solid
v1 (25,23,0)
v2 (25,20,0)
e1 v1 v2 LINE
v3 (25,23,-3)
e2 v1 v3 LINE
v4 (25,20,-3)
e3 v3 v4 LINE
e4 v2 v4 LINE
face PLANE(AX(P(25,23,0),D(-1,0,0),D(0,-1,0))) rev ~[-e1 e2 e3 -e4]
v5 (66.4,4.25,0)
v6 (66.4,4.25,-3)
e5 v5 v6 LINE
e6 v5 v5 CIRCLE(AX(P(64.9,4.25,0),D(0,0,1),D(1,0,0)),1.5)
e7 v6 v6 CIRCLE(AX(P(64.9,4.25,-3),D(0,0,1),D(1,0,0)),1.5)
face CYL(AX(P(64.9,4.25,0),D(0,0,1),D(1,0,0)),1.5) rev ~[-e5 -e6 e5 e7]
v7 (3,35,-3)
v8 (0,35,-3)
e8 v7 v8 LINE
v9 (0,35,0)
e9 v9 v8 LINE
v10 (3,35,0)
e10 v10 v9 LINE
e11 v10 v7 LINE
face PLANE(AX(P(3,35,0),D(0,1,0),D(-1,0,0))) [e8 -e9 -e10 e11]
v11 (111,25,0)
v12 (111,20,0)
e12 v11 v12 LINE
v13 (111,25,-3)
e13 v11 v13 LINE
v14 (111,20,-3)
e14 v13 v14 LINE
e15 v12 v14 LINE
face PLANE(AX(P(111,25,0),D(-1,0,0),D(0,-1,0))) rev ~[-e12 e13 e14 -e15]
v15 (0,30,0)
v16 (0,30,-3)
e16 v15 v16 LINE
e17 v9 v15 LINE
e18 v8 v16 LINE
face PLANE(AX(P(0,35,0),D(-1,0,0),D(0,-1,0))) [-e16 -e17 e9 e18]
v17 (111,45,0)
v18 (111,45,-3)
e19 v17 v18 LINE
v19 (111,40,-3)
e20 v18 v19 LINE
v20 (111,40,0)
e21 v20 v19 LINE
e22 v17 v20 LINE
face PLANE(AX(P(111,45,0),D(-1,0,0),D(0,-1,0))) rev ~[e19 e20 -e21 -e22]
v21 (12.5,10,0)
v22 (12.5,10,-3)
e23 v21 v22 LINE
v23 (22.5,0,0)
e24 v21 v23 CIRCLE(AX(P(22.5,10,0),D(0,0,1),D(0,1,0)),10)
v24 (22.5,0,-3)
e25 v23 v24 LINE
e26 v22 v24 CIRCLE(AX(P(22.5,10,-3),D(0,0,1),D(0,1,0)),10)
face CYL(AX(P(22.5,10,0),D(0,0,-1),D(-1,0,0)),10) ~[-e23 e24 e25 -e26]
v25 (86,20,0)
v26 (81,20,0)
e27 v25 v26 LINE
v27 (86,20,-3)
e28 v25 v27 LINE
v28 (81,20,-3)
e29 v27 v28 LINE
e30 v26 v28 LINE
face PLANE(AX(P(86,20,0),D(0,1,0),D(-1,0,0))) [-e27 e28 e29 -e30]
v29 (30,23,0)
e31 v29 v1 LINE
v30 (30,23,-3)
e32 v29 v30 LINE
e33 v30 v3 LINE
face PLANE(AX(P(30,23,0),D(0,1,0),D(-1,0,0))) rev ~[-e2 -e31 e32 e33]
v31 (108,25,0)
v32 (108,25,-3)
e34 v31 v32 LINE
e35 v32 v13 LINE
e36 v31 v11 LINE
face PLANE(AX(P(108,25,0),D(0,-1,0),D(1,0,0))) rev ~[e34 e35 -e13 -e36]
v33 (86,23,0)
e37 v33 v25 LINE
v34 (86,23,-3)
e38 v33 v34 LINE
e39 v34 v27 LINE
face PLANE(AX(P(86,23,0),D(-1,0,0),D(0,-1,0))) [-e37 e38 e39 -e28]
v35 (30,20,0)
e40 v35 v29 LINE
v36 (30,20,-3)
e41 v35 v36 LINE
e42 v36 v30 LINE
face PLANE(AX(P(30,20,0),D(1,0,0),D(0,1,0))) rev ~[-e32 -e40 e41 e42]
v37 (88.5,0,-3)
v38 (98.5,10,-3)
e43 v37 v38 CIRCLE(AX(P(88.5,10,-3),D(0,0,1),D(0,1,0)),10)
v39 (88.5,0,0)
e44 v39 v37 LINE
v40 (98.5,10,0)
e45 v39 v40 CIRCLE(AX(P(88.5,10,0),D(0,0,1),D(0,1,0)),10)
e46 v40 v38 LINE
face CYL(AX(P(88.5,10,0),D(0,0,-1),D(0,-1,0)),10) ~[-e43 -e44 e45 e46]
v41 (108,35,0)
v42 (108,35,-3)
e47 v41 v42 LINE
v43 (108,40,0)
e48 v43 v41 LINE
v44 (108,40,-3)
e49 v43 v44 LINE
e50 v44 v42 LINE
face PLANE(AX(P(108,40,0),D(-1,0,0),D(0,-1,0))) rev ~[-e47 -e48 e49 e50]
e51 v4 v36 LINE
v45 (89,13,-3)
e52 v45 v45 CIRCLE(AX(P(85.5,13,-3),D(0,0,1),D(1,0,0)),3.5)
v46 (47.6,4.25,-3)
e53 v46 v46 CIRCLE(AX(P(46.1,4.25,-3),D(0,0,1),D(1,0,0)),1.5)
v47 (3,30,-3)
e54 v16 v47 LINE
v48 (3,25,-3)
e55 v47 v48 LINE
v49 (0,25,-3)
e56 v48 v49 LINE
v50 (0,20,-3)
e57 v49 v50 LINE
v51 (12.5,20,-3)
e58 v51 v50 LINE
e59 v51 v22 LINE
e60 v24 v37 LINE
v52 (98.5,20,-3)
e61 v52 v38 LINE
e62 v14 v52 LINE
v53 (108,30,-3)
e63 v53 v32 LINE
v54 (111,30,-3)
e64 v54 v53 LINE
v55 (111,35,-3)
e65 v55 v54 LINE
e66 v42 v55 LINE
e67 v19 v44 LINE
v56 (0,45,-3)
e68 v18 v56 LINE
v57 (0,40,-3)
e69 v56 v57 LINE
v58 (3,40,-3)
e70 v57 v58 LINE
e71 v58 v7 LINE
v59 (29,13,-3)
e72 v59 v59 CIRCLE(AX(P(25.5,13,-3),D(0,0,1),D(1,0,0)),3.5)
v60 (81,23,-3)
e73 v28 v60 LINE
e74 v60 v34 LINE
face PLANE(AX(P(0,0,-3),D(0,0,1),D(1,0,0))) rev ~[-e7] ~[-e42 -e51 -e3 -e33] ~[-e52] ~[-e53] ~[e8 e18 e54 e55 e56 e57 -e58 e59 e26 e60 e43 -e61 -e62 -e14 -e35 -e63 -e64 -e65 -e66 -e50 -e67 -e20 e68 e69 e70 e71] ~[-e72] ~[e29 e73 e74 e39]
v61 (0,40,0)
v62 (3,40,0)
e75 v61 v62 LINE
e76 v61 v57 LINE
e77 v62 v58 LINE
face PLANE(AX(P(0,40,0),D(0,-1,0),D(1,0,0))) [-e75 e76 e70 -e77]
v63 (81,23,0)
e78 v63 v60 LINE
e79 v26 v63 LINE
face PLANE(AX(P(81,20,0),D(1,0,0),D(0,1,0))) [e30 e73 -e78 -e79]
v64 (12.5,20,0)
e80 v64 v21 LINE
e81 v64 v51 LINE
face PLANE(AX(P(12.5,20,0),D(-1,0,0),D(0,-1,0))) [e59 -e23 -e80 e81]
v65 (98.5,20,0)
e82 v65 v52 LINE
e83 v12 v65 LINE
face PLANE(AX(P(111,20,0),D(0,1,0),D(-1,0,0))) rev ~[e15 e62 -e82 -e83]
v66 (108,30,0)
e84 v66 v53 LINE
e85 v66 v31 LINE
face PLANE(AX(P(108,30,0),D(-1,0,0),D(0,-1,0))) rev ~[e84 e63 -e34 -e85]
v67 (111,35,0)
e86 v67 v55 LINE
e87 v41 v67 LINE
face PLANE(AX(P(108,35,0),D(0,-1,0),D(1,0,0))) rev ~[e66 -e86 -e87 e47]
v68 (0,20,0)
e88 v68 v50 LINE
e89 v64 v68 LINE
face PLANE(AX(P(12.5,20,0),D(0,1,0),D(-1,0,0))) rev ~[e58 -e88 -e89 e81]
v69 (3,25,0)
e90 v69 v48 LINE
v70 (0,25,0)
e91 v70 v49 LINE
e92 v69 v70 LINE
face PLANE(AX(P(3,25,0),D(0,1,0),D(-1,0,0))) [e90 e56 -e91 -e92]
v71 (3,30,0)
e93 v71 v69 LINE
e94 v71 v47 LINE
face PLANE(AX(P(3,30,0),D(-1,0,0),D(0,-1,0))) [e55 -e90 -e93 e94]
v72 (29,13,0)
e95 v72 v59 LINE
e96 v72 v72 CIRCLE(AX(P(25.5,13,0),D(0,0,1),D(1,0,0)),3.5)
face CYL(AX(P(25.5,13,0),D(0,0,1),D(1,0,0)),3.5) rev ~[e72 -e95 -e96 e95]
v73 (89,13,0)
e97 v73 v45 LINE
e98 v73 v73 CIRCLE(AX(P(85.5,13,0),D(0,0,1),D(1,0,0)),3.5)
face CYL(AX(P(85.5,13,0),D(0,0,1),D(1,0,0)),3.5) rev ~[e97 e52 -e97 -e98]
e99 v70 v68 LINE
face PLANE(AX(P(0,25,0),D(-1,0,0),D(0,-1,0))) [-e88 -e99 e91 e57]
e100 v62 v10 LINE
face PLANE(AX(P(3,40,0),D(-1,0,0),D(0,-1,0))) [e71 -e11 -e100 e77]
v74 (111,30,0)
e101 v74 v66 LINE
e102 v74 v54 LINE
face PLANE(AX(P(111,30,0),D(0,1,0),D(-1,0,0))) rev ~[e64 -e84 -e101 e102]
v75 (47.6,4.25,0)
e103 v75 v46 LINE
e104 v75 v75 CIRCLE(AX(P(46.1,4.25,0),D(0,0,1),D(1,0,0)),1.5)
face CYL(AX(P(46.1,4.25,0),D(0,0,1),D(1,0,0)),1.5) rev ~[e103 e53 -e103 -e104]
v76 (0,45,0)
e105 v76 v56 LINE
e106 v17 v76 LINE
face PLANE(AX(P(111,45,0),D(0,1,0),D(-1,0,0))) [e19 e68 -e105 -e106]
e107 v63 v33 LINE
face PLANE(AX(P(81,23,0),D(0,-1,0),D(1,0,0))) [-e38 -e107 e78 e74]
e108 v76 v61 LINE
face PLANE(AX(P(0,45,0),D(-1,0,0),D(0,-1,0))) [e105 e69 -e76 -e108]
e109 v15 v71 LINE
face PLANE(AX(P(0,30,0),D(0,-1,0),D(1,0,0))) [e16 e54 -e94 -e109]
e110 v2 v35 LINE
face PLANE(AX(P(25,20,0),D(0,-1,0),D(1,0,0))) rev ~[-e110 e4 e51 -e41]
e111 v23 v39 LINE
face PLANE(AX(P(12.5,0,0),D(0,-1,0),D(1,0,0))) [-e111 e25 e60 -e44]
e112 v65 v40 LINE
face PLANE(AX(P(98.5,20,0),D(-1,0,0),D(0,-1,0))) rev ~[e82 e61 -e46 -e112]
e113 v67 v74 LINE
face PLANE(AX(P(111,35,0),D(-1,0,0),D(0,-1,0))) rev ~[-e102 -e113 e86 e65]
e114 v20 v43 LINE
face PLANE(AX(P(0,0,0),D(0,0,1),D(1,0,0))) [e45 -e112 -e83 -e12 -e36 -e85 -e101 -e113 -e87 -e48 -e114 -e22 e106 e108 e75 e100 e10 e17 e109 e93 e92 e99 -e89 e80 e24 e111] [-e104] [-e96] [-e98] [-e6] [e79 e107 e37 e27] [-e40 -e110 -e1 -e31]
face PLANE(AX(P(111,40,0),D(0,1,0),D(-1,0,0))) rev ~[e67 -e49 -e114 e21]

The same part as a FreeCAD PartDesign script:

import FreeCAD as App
import Part
import Sketcher

V = App.Vector
Q = App.Units.Quantity


def edges_at(feature, points):
    """Names of the edges that pass closest to the given points."""
    edges = feature.Shape.Edges
    near = lambda p: min(range(len(edges)), key=lambda i: edges[i].distToShape(Part.Vertex(*p))[0])
    return sorted({f"Edge{near(p) + 1}" for p in points})


def add_polygon(sketch, points):
    """Adds a closed chain of lines whose ends are joined by coincident constraints."""
    first, n = sketch.GeometryCount, len(points)
    for a, b in zip(points, points[1:] + points[:1]):
        sketch.addGeometry(Part.LineSegment(App.Vector(*a, 0), App.Vector(*b, 0)), False)
    for i in range(n):
        sketch.addConstraint(Sketcher.Constraint("Coincident", first + i, 2, first + (i + 1) % n, 1))

doc = App.newDocument("Part")
body = doc.addObject("PartDesign::Body", "Body")

sketch1 = doc.addObject("Sketcher::SketchObject", "Sketch")
body.addObject(sketch1)
sketch1.AttachmentSupport = (doc.XY_Plane, [""])
sketch1.MapMode = "FlatFace"
add_polygon(sketch1, [(12.5, 20), (12.5, 0), (98.5, 0), (98.5, 20), (111, 20), (111, 25), (108, 25), (108, 30), (111, 30), (111, 35), (108, 35), (108, 40), (111, 40), (111, 45), (0, 45), (0, 40), (3, 40), (3, 35), (0, 35), (0, 30), (3, 30), (3, 25), (0, 25), (0, 20)])
sketch1.addConstraint(Sketcher.Constraint("Vertical", 0))
sketch1.addConstraint(Sketcher.Constraint("Horizontal", 1))
sketch1.addConstraint(Sketcher.Constraint("Vertical", 2))
sketch1.addConstraint(Sketcher.Constraint("Horizontal", 3))
sketch1.addConstraint(Sketcher.Constraint("Vertical", 4))
sketch1.addConstraint(Sketcher.Constraint("Horizontal", 5))
sketch1.addConstraint(Sketcher.Constraint("Vertical", 6))
sketch1.addConstraint(Sketcher.Constraint("Horizontal", 7))
sketch1.addConstraint(Sketcher.Constraint("Vertical", 8))
sketch1.addConstraint(Sketcher.Constraint("Horizontal", 9))
sketch1.addConstraint(Sketcher.Constraint("Vertical", 10))
sketch1.addConstraint(Sketcher.Constraint("Horizontal", 11))
sketch1.addConstraint(Sketcher.Constraint("Vertical", 12))
sketch1.addConstraint(Sketcher.Constraint("Horizontal", 13))
sketch1.addConstraint(Sketcher.Constraint("Vertical", 14))
sketch1.addConstraint(Sketcher.Constraint("Horizontal", 15))
sketch1.addConstraint(Sketcher.Constraint("Vertical", 16))
sketch1.addConstraint(Sketcher.Constraint("Horizontal", 17))
sketch1.addConstraint(Sketcher.Constraint("Vertical", 18))
sketch1.addConstraint(Sketcher.Constraint("Horizontal", 19))
sketch1.addConstraint(Sketcher.Constraint("Vertical", 20))
sketch1.addConstraint(Sketcher.Constraint("Horizontal", 21))
sketch1.addConstraint(Sketcher.Constraint("Vertical", 22))
sketch1.addConstraint(Sketcher.Constraint("Horizontal", 23))
sketch1.addConstraint(Sketcher.Constraint("PointOnObject", 0, 2, -1))
sketch1.addConstraint(Sketcher.Constraint("PointOnObject", 13, 2, -2))
sketch1.addConstraint(Sketcher.Constraint("PointOnObject", 17, 2, -2))
sketch1.addConstraint(Sketcher.Constraint("PointOnObject", 21, 2, -2))
sketch1.addConstraint(Sketcher.Constraint("Horizontal", 11, 2, 14, 2))
sketch1.addConstraint(Sketcher.Constraint("Horizontal", 9, 2, 16, 2))
sketch1.addConstraint(Sketcher.Constraint("Horizontal", 7, 2, 18, 2))
sketch1.addConstraint(Sketcher.Constraint("Horizontal", 5, 2, 20, 2))
sketch1.addConstraint(Sketcher.Constraint("Horizontal", 3, 2, 22, 2))
sketch1.addConstraint(Sketcher.Constraint("Vertical", 4, 2, 7, 2))
sketch1.addConstraint(Sketcher.Constraint("Vertical", 6, 2, 9, 2))
sketch1.addConstraint(Sketcher.Constraint("Vertical", 8, 2, 11, 2))
sketch1.addConstraint(Sketcher.Constraint("Vertical", 16, 2, 19, 2))
sketch1.addConstraint(Sketcher.Constraint("Equal", 11, 15))
sketch1.addConstraint(Sketcher.Constraint("Equal", 3, 23))
sketch1.addConstraint(Sketcher.Constraint("Equal", 4, 6))
sketch1.addConstraint(Sketcher.Constraint("Equal", 6, 8))
sketch1.addConstraint(Sketcher.Constraint("Equal", 8, 10))
sketch1.addConstraint(Sketcher.Constraint("Equal", 10, 12))
sketch1.addConstraint(Sketcher.Constraint("DistanceX", 1, 1, 1, 2, Q("86 mm")))
sketch1.addConstraint(Sketcher.Constraint("DistanceX", 5, 2, 5, 1, Q("3 mm")))
sketch1.addConstraint(Sketcher.Constraint("DistanceX", 13, 2, 13, 1, Q("111 mm")))
sketch1.addConstraint(Sketcher.Constraint("DistanceY", 0, 2, 0, 1, Q("20 mm")))
sketch1.addConstraint(Sketcher.Constraint("DistanceY", 4, 1, 4, 2, Q("5 mm")))
pad1 = doc.addObject("PartDesign::Pad", "Pad")
body.addObject(pad1)
pad1.Profile = sketch1
pad1.Length = 3
pad1.Reversed = True
doc.recompute()

fillet = doc.addObject("PartDesign::Fillet", "Fillet")
body.addObject(fillet)
fillet.Base = (pad1, edges_at(pad1, [(12.5, 0, -1.5), (98.5, 0, -1.5)]))
fillet.Radius = 10

sketch2 = doc.addObject("Sketcher::SketchObject", "Sketch001")
body.addObject(sketch2)
sketch2.AttachmentSupport = (doc.XY_Plane, [""])
sketch2.MapMode = "FlatFace"
add_polygon(sketch2, [(25, 23), (25, 20), (30, 20), (30, 23)])
add_polygon(sketch2, [(81, 20), (86, 20), (86, 23), (81, 23)])
sketch2.addConstraint(Sketcher.Constraint("Vertical", 0))
sketch2.addConstraint(Sketcher.Constraint("Horizontal", 1))
sketch2.addConstraint(Sketcher.Constraint("Vertical", 2))
sketch2.addConstraint(Sketcher.Constraint("Horizontal", 3))
sketch2.addConstraint(Sketcher.Constraint("Horizontal", 4))
sketch2.addConstraint(Sketcher.Constraint("Vertical", 5))
sketch2.addConstraint(Sketcher.Constraint("Horizontal", 6))
sketch2.addConstraint(Sketcher.Constraint("Vertical", 7))
sketch2.addConstraint(Sketcher.Constraint("Horizontal", 1, 2, 4, 2))
sketch2.addConstraint(Sketcher.Constraint("Horizontal", 3, 2, 5, 2))
sketch2.addConstraint(Sketcher.Constraint("Equal", 3, 4))
sketch2.addConstraint(Sketcher.Constraint("DistanceX", 1, 1, 1, 2, Q("5 mm")))
sketch2.addConstraint(Sketcher.Constraint("DistanceY", 0, 2, 0, 1, Q("3 mm")))
sketch2.addConstraint(Sketcher.Constraint("DistanceX", -1, 1, 0, 2, Q("25 mm")))
sketch2.addConstraint(Sketcher.Constraint("DistanceY", -1, 1, 0, 2, Q("20 mm")))
sketch2.addConstraint(Sketcher.Constraint("DistanceX", -1, 1, 4, 2, Q("86 mm")))
pocket1 = doc.addObject("PartDesign::Pocket", "Pocket")
body.addObject(pocket1)
pocket1.Profile = sketch2
pocket1.Length = 10

sketch3 = doc.addObject("Sketcher::SketchObject", "Sketch002")
body.addObject(sketch3)
sketch3.AttachmentSupport = (doc.XY_Plane, [""])
sketch3.MapMode = "FlatFace"
sketch3.addGeometry(Part.Circle(V(64.9, 4.2, 0), V(0, 0, 1), 1.5), False)
sketch3.addGeometry(Part.Circle(V(46.1, 4.2, 0), V(0, 0, 1), 1.5), False)
sketch3.addConstraint(Sketcher.Constraint("Equal", 0, 1))
sketch3.addConstraint(Sketcher.Constraint("Horizontal", 0, 3, 1, 3))
sketch3.addConstraint(Sketcher.Constraint("Diameter", 0, Q("3 mm")))
sketch3.addConstraint(Sketcher.Constraint("DistanceX", -1, 1, 0, 3, Q("64.9 mm")))
sketch3.addConstraint(Sketcher.Constraint("DistanceX", -1, 1, 1, 3, Q("46.1 mm")))
sketch3.addConstraint(Sketcher.Constraint("DistanceY", -1, 1, 0, 3, Q("4.25 mm")))
pocket2 = doc.addObject("PartDesign::Pocket", "Pocket001")
body.addObject(pocket2)
pocket2.Profile = sketch3
pocket2.Length = 10

sketch4 = doc.addObject("Sketcher::SketchObject", "Sketch003")
body.addObject(sketch4)
sketch4.AttachmentSupport = (doc.XY_Plane, [""])
sketch4.MapMode = "FlatFace"
sketch4.addGeometry(Part.Circle(V(25.5, 13, 0), V(0, 0, 1), 3.5), False)
sketch4.addGeometry(Part.Circle(V(85.5, 13, 0), V(0, 0, 1), 3.5), False)
sketch4.addConstraint(Sketcher.Constraint("Equal", 0, 1))
sketch4.addConstraint(Sketcher.Constraint("Horizontal", 0, 3, 1, 3))
sketch4.addConstraint(Sketcher.Constraint("Diameter", 0, Q("7 mm")))
sketch4.addConstraint(Sketcher.Constraint("DistanceY", -1, 1, 0, 3, Q("13 mm")))
sketch4.addConstraint(Sketcher.Constraint("DistanceX", 0, 3, 1, 3, Q("60 mm")))
sketch4.addConstraint(Sketcher.Constraint("DistanceX", -1, 1, 0, 3, Q("25.5 mm")))
pocket3 = doc.addObject("PartDesign::Pocket", "Pocket002")
body.addObject(pocket3)
pocket3.Profile = sketch4
pocket3.Length = 10

doc.recompute()
